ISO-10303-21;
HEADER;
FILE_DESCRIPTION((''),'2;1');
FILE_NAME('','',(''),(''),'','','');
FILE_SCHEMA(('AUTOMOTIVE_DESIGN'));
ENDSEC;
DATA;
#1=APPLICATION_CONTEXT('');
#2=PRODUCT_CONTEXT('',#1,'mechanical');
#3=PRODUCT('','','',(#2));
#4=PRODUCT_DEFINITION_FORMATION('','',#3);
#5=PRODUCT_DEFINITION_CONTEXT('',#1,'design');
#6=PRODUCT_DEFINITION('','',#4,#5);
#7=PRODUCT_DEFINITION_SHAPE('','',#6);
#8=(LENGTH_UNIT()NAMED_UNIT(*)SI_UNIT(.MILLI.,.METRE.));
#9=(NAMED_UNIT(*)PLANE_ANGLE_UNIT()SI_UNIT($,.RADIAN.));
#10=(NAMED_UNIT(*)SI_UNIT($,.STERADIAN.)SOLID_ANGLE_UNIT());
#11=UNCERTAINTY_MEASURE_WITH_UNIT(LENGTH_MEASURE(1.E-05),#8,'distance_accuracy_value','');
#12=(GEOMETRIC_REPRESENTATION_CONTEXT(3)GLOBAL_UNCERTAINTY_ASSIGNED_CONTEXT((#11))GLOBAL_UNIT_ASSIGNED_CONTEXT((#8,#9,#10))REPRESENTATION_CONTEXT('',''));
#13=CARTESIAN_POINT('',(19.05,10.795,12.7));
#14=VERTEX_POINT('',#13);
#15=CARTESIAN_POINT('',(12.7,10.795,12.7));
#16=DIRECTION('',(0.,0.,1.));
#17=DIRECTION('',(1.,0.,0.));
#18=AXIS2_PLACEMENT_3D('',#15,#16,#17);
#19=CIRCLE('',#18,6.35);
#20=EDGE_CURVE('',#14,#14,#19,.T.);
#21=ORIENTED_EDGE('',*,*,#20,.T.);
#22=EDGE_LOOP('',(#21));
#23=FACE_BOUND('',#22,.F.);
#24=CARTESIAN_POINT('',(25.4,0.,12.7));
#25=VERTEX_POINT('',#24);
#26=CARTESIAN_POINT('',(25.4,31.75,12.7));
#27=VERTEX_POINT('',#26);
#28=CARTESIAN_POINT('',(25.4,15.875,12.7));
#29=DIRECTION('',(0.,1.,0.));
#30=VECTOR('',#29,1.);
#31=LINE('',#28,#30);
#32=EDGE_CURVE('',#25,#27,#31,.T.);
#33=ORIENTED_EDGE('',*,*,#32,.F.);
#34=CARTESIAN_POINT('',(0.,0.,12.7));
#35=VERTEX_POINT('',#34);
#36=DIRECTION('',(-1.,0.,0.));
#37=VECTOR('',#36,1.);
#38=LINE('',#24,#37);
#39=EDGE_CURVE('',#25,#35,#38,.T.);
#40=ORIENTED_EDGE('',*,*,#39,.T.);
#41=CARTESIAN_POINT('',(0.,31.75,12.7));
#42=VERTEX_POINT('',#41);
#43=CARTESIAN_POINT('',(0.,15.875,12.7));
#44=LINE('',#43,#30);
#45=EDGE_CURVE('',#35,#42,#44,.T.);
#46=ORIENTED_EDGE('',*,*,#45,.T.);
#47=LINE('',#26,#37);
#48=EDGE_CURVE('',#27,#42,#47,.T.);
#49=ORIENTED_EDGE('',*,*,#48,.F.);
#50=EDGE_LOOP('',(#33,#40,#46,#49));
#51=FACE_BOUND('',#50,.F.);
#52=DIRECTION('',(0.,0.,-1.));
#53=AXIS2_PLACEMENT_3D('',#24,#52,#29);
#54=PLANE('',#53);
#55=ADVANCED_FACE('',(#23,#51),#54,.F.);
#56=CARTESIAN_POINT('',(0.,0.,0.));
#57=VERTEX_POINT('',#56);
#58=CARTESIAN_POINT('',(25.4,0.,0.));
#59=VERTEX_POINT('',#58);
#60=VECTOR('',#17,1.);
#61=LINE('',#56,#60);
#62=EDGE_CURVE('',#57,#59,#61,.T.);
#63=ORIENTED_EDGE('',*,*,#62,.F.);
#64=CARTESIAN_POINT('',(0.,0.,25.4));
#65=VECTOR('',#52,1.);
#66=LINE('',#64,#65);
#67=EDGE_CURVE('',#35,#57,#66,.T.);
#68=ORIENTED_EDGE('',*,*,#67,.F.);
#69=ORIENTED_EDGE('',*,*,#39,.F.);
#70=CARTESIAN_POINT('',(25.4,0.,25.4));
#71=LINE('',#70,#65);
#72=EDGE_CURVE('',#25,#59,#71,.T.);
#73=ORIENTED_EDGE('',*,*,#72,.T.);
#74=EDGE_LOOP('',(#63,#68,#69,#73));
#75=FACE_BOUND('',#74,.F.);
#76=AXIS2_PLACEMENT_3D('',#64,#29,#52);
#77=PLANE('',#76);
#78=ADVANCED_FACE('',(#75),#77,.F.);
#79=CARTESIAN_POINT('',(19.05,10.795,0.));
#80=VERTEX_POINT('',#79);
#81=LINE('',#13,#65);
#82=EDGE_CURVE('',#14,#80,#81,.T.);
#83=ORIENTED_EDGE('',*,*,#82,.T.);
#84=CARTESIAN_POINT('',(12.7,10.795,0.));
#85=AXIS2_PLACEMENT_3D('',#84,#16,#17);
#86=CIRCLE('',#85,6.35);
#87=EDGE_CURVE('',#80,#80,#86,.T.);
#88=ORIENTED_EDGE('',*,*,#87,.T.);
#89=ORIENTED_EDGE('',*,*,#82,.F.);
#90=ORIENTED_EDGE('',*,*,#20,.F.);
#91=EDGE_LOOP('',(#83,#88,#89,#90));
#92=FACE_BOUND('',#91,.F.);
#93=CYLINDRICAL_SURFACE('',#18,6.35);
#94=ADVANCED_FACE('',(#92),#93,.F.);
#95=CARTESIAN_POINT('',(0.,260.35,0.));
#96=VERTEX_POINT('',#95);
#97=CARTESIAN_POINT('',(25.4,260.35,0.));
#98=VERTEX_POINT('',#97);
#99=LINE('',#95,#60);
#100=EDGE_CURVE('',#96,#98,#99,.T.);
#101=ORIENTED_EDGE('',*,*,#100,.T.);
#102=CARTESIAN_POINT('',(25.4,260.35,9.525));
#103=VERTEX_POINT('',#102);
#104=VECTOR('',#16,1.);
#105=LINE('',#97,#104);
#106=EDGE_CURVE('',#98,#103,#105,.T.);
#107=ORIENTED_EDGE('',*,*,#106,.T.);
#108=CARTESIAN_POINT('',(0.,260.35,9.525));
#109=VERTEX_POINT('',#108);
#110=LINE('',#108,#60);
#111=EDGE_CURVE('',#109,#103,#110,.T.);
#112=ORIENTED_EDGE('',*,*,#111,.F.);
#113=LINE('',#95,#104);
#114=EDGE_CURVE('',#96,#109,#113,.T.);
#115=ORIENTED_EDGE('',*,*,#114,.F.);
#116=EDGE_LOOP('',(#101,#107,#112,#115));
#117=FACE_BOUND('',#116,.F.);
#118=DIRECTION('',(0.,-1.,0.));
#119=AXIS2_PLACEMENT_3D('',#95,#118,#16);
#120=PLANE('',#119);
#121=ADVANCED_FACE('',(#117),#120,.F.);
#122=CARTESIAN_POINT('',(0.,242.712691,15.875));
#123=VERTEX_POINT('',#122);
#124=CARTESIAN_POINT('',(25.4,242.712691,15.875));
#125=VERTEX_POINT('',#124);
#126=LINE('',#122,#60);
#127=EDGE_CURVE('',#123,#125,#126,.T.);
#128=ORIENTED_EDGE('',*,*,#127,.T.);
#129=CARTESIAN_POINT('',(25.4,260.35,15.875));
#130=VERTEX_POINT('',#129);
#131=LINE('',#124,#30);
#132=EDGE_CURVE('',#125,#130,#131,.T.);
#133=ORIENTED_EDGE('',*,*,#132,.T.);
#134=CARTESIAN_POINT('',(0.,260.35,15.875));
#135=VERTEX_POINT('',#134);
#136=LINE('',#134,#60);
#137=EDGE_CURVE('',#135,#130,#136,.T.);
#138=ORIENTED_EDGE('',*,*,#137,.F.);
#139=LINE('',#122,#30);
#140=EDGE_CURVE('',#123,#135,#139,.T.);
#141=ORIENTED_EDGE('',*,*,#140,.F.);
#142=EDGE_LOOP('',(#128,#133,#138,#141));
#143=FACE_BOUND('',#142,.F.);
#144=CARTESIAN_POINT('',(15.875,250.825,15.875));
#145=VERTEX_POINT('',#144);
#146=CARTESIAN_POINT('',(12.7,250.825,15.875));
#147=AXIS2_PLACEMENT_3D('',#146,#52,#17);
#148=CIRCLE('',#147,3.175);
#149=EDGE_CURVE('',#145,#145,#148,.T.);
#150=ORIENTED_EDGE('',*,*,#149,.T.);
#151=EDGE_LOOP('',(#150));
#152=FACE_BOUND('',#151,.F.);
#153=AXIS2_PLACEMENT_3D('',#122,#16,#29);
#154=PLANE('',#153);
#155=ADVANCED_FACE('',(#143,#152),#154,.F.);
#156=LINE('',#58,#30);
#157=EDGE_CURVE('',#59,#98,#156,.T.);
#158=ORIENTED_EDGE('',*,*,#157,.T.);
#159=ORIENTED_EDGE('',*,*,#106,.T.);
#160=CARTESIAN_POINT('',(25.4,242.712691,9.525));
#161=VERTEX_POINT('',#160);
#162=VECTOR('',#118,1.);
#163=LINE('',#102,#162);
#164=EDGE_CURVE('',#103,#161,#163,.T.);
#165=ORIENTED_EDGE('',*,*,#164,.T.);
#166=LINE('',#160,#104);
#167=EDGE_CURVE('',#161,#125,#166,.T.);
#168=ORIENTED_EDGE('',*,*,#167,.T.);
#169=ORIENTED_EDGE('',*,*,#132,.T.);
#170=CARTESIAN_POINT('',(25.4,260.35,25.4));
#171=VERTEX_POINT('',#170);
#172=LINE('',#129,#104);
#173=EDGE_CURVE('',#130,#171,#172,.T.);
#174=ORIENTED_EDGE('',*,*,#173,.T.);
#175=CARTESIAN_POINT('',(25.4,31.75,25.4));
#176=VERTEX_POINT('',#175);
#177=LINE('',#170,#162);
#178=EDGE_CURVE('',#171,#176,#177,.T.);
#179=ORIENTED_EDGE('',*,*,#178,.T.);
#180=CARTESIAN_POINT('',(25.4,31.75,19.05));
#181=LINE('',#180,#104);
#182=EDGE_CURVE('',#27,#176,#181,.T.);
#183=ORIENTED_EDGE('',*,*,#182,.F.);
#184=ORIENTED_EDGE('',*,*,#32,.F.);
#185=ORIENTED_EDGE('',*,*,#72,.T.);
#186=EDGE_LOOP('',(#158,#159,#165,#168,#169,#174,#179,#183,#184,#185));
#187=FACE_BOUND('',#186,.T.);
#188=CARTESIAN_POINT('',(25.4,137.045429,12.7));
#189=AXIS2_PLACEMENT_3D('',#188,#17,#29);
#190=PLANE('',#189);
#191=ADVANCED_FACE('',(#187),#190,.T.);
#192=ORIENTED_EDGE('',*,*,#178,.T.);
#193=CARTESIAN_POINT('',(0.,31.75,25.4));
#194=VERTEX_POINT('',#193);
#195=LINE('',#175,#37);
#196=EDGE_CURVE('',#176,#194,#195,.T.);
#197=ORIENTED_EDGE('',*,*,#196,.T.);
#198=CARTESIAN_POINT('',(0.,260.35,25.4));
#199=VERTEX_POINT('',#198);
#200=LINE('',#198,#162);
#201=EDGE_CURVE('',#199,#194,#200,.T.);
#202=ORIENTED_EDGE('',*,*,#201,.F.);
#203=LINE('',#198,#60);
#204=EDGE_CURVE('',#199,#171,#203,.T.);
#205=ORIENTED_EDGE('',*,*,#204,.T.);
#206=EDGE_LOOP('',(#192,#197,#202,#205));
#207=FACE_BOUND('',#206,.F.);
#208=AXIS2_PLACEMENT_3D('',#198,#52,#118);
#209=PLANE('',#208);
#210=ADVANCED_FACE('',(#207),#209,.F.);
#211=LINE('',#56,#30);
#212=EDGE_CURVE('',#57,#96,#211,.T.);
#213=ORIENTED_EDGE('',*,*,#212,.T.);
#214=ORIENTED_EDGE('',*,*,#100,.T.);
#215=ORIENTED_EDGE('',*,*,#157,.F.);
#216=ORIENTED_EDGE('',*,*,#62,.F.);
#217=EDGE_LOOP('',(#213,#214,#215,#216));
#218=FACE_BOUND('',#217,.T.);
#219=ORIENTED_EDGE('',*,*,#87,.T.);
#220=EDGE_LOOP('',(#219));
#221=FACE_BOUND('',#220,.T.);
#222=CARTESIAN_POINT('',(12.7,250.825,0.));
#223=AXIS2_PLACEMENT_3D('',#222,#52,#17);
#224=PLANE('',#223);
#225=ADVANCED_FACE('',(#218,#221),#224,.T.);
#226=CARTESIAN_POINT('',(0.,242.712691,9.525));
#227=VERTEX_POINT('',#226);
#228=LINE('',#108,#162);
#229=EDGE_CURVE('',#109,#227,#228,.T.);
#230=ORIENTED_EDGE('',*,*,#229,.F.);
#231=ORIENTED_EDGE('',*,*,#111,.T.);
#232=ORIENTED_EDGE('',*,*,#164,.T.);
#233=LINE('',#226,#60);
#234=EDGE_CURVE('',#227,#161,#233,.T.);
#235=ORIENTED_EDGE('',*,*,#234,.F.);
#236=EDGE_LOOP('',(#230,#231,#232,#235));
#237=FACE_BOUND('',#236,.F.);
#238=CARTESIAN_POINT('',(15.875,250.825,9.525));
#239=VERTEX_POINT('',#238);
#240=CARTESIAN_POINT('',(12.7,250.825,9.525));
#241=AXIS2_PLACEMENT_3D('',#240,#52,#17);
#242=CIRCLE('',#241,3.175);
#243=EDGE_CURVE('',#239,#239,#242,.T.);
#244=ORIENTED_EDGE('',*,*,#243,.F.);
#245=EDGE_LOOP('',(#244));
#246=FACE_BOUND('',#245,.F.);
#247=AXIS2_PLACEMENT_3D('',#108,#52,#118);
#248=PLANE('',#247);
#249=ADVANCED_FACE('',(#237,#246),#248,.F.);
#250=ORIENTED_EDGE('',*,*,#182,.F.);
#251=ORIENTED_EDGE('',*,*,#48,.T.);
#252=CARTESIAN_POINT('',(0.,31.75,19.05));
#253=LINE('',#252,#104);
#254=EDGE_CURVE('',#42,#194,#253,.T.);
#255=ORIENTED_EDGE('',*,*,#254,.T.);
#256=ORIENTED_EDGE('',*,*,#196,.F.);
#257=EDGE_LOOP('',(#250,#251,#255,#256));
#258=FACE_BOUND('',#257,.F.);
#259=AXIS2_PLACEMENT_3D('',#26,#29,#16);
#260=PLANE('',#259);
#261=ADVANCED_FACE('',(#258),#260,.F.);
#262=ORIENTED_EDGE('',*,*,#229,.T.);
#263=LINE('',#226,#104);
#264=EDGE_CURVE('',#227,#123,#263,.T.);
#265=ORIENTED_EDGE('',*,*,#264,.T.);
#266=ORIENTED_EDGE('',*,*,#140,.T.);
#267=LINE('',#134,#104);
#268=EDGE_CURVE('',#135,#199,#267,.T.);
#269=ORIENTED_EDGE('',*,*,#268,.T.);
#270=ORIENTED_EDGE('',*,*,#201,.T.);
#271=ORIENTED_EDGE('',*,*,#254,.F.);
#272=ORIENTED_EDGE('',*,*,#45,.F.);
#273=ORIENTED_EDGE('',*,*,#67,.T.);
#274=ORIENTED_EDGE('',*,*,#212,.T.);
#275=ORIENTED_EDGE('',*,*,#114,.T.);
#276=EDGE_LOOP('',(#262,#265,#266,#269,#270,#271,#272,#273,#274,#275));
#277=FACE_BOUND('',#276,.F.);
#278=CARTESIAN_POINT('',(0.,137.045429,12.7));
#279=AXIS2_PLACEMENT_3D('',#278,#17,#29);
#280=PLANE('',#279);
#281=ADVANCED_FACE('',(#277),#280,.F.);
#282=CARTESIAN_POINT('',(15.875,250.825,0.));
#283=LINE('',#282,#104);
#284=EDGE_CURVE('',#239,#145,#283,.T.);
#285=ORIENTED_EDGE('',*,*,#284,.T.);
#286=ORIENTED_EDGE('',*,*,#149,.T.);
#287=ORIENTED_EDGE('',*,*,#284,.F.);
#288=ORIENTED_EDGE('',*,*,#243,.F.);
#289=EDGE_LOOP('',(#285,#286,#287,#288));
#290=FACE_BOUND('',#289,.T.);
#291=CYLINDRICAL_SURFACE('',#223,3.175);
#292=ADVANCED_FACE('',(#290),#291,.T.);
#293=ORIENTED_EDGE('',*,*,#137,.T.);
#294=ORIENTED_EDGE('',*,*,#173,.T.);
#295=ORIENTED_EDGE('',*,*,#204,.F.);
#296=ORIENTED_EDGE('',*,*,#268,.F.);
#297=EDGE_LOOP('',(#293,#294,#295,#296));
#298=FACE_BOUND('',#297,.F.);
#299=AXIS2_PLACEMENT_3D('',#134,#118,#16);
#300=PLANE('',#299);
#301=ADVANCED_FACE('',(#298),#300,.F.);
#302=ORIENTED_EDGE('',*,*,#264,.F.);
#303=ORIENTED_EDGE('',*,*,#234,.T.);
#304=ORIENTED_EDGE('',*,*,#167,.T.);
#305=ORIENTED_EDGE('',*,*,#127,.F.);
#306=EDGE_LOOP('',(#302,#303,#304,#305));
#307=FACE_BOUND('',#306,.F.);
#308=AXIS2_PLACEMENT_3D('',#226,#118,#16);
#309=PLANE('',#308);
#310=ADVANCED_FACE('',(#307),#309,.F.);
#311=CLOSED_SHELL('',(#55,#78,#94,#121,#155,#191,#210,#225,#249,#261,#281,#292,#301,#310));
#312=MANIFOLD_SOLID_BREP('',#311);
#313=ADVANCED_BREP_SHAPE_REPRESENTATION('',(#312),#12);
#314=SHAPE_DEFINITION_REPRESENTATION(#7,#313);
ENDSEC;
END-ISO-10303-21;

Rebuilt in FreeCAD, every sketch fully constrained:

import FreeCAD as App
import Part
import Sketcher
from FreeCAD import Vector
Q = App.Units.Quantity

doc = App.newDocument("Part")
body = doc.addObject("PartDesign::Body", "Body")

sketch1 = body.newObject("Sketcher::SketchObject", "Sketch")
sketch1.AttachmentSupport = (doc.getObject("YZ_Plane"), [""])
sketch1.MapMode = "FlatFace"
sketch1.addGeometry(Part.LineSegment(Vector(0, 25.4, 0), Vector(0, 0, 0)), False)
sketch1.addGeometry(Part.LineSegment(Vector(0, 0, 0), Vector(260.35, 0, 0)), False)
sketch1.addGeometry(Part.LineSegment(Vector(260.35, 0, 0), Vector(260.35, 9.525, 0)), False)
sketch1.addGeometry(Part.LineSegment(Vector(260.35, 9.525, 0), Vector(242.712691, 9.525, 0)), False)
sketch1.addGeometry(Part.LineSegment(Vector(242.712691, 9.525, 0), Vector(242.712691, 15.875, 0)), False)
sketch1.addGeometry(Part.LineSegment(Vector(242.712691, 15.875, 0), Vector(260.35, 15.875, 0)), False)
sketch1.addGeometry(Part.LineSegment(Vector(260.35, 15.875, 0), Vector(260.35, 25.4, 0)), False)
sketch1.addGeometry(Part.LineSegment(Vector(260.35, 25.4, 0), Vector(0, 25.4, 0)), False)
sketch1.addConstraint(Sketcher.Constraint("Coincident", 0, 2, 1, 1))
sketch1.addConstraint(Sketcher.Constraint("Coincident", 1, 2, 2, 1))
sketch1.addConstraint(Sketcher.Constraint("Coincident", 2, 2, 3, 1))
sketch1.addConstraint(Sketcher.Constraint("Coincident", 3, 2, 4, 1))
sketch1.addConstraint(Sketcher.Constraint("Coincident", 4, 2, 5, 1))
sketch1.addConstraint(Sketcher.Constraint("Coincident", 5, 2, 6, 1))
sketch1.addConstraint(Sketcher.Constraint("Coincident", 6, 2, 7, 1))
sketch1.addConstraint(Sketcher.Constraint("Coincident", 7, 2, 0, 1))
sketch1.addConstraint(Sketcher.Constraint("Vertical", 0))
sketch1.addConstraint(Sketcher.Constraint("Horizontal", 1))
sketch1.addConstraint(Sketcher.Constraint("Vertical", 2))
sketch1.addConstraint(Sketcher.Constraint("Horizontal", 3))
sketch1.addConstraint(Sketcher.Constraint("Vertical", 4))
sketch1.addConstraint(Sketcher.Constraint("Horizontal", 5))
sketch1.addConstraint(Sketcher.Constraint("Vertical", 6))
sketch1.addConstraint(Sketcher.Constraint("Horizontal", 7))
sketch1.addConstraint(Sketcher.Constraint("Coincident", 0, 2, -1, 1))
sketch1.addConstraint(Sketcher.Constraint("Vertical", 2, 2, 5, 2))
sketch1.addConstraint(Sketcher.Constraint("Equal", 2, 6))
sketch1.addConstraint(Sketcher.Constraint("DistanceY", 0, 2, 0, 1, Q("1 in")))
sketch1.addConstraint(Sketcher.Constraint("DistanceX", 1, 1, 1, 2, Q("10.25 in")))
sketch1.addConstraint(Sketcher.Constraint("DistanceY", 4, 1, 4, 2, Q("0.25 in")))
sketch1.addConstraint(Sketcher.Constraint("DistanceX", 3, 2, 3, 1, 17.637309))
pad1 = body.newObject("PartDesign::Pad", "Pad")
pad1.Profile = sketch1
pad1.Length = Q("1 in")

sketch2 = body.newObject("Sketcher::SketchObject", "Sketch001")
sketch2.AttachmentSupport = (doc.getObject("YZ_Plane"), [""])
sketch2.MapMode = "FlatFace"
sketch2.AttachmentOffset = App.Placement(Vector(0, 0, 1 * 25.4), App.Rotation())
sketch2.addGeometry(Part.LineSegment(Vector(0, 25.4, 0), Vector(0, 12.7, 0)), False)
sketch2.addGeometry(Part.LineSegment(Vector(0, 12.7, 0), Vector(31.75, 12.7, 0)), False)
sketch2.addGeometry(Part.LineSegment(Vector(31.75, 12.7, 0), Vector(31.75, 25.4, 0)), False)
sketch2.addGeometry(Part.LineSegment(Vector(31.75, 25.4, 0), Vector(0, 25.4, 0)), False)
sketch2.addConstraint(Sketcher.Constraint("Coincident", 0, 2, 1, 1))
sketch2.addConstraint(Sketcher.Constraint("Coincident", 1, 2, 2, 1))
sketch2.addConstraint(Sketcher.Constraint("Coincident", 2, 2, 3, 1))
sketch2.addConstraint(Sketcher.Constraint("Coincident", 3, 2, 0, 1))
sketch2.addConstraint(Sketcher.Constraint("Vertical", 0))
sketch2.addConstraint(Sketcher.Constraint("Horizontal", 1))
sketch2.addConstraint(Sketcher.Constraint("Vertical", 2))
sketch2.addConstraint(Sketcher.Constraint("Horizontal", 3))
sketch2.addConstraint(Sketcher.Constraint("PointOnObject", 0, 2, -2))
sketch2.addConstraint(Sketcher.Constraint("DistanceY", 0, 2, 0, 1, Q("0.5 in")))
sketch2.addConstraint(Sketcher.Constraint("DistanceY", -1, 1, 2, 2, Q("1 in")))
sketch2.addConstraint(Sketcher.Constraint("DistanceX", 1, 1, 1, 2, Q("1.25 in")))
pocket1 = body.newObject("PartDesign::Pocket", "Pocket")
pocket1.Profile = sketch2
pocket1.Length = Q("1 in")

sketch3 = body.newObject("Sketcher::SketchObject", "Sketch002")
sketch3.AttachmentSupport = (doc.getObject("XY_Plane"), [""])
sketch3.MapMode = "FlatFace"
sketch3.addGeometry(Part.Circle(Vector(12.7, 250.825, 0), Vector(0, 0, 1), 3.175), False)
sketch3.addConstraint(Sketcher.Constraint("Diameter", 0, Q("0.25 in")))
sketch3.addConstraint(Sketcher.Constraint("DistanceX", -1, 1, 0, 3, Q("0.5 in")))
sketch3.addConstraint(Sketcher.Constraint("DistanceY", -1, 1, 0, 3, Q("9.875 in")))
pad2 = body.newObject("PartDesign::Pad", "Pad001")
pad2.Profile = sketch3
pad2.Length = Q("1 in")

sketch4 = body.newObject("Sketcher::SketchObject", "Sketch003")
sketch4.AttachmentSupport = (doc.getObject("XY_Plane"), [""])
sketch4.MapMode = "FlatFace"
sketch4.AttachmentOffset = App.Placement(Vector(0, 0, 0.5 * 25.4), App.Rotation())
sketch4.addGeometry(Part.Circle(Vector(12.7, 10.795, 0), Vector(0, 0, 1), 6.35), False)
sketch4.addConstraint(Sketcher.Constraint("Diameter", 0, Q("0.5 in")))
sketch4.addConstraint(Sketcher.Constraint("DistanceX", -1, 1, 0, 3, Q("0.5 in")))
sketch4.addConstraint(Sketcher.Constraint("DistanceY", -1, 1, 0, 3, Q("0.425 in")))
pocket2 = body.newObject("PartDesign::Pocket", "Pocket001")
pocket2.Profile = sketch4
pocket2.Length = Q("1 in")

doc.recompute()
